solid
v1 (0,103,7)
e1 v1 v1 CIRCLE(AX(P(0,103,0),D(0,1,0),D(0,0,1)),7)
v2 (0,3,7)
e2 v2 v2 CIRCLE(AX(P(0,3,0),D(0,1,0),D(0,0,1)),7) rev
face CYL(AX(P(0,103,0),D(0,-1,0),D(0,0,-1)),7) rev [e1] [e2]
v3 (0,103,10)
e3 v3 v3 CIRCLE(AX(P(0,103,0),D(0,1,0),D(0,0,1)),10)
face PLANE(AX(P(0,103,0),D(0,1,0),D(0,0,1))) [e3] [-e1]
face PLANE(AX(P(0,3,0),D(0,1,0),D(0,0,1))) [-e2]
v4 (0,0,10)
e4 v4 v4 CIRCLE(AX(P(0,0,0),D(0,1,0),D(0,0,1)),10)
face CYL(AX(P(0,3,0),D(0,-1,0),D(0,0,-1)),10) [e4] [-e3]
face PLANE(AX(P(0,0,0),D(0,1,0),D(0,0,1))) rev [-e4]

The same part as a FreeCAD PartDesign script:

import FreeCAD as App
import Part
import Sketcher
from FreeCAD import Vector
Q = App.Units.Quantity

doc = App.newDocument("Part")
body = doc.addObject("PartDesign::Body", "Body")

sketch1 = body.newObject("Sketcher::SketchObject", "Sketch")
sketch1.AttachmentSupport = (doc.getObject("XZ_Plane"), [""])
sketch1.MapMode = "FlatFace"
sketch1.addGeometry(Part.Circle(Vector(0, 0, 0), Vector(0, 0, 1), 10), False)
sketch1.addConstraint([
    Sketcher.Constraint("Coincident", 0, 3, -1, 1),
    Sketcher.Constraint("Diameter", 0, Q("20 mm")),
])
pad1 = body.newObject("PartDesign::Pad", "Pad")
pad1.Profile = sketch1
pad1.Length = 3
pad1.Reversed = True

sketch2 = body.newObject("Sketcher::SketchObject", "Sketch001")
sketch2.AttachmentSupport = (doc.getObject("XZ_Plane"), [""])
sketch2.MapMode = "FlatFace"
sketch2.AttachmentOffset = App.Placement(Vector(0, 0, -3), App.Rotation())
sketch2.addGeometry([
    Part.Circle(Vector(0, 0, 0), Vector(0, 0, 1), 10),
    Part.Circle(Vector(0, 0, 0), Vector(0, 0, 1), 7),
], False)
sketch2.addConstraint([
    Sketcher.Constraint("Coincident", 0, 3, -1, 1),
    Sketcher.Constraint("Coincident", 1, 3, -1, 1),
    Sketcher.Constraint("Diameter", 0, Q("20 mm")),
    Sketcher.Constraint("Diameter", 1, Q("14 mm")),
])
pad2 = body.newObject("PartDesign::Pad", "Pad001")
pad2.Profile = sketch2
pad2.Length = 100
pad2.Reversed = True

doc.recompute()
